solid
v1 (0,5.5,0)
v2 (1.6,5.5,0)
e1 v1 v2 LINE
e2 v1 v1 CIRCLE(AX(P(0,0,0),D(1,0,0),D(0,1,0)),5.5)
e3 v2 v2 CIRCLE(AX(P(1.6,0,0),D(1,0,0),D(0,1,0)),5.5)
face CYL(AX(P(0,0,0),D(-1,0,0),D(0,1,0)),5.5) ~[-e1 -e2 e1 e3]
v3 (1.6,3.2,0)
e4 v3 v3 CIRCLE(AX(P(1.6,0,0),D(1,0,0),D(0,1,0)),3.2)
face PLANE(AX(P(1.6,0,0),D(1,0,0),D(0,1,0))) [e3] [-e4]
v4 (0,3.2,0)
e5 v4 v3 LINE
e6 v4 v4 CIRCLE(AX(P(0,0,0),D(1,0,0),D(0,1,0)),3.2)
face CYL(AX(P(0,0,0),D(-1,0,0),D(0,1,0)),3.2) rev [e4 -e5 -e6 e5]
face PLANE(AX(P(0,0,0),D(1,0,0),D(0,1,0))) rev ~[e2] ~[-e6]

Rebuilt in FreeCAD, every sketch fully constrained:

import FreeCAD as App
import Part
import Sketcher
from FreeCAD import Vector

doc = App.newDocument("Part")
params = doc.addObject("Spreadsheet::Sheet", "Params")
for row, (alias, value) in enumerate([
    ("sketch1_diameter", "11 mm"),
    ("sketch1_diameter2", "6.4 mm"),
    ("pad1_length", "1.6 mm"),
], start=1):
    params.set(f"A{row}", alias)
    params.set(f"B{row}", "=" + value)
    params.setAlias(f"B{row}", alias)

body = doc.addObject("PartDesign::Body", "Body")

# Sketch on YZ plane
sketch1 = body.newObject("Sketcher::SketchObject", "Sketch")
sketch1.AttachmentSupport = (doc.getObject("YZ_Plane"), [""])
sketch1.MapMode = "FlatFace"
sketch1.addGeometry(Part.Circle(Vector(0, 0, 0), Vector(0, 0, 1), 5.5), False)
sketch1.addGeometry(Part.Circle(Vector(0, 0, 0), Vector(0, 0, 1), 3.2), False)
sketch1.addConstraint(Sketcher.Constraint("Coincident", 0, 3, -1, 1))
sketch1.addConstraint(Sketcher.Constraint("Coincident", 1, 3, -1, 1))
sketch1.addConstraint(Sketcher.Constraint("Diameter", 0, 11.0))
sketch1.addConstraint(Sketcher.Constraint("Diameter", 1, 6.4))
sketch1.setExpression("Constraints[2]", "Params.sketch1_diameter")
sketch1.setExpression("Constraints[3]", "Params.sketch1_diameter2")
pad1 = body.newObject("PartDesign::Pad", "Pad")
pad1.Profile = sketch1
pad1.setExpression("Length", "Params.pad1_length")

doc.recompute()
